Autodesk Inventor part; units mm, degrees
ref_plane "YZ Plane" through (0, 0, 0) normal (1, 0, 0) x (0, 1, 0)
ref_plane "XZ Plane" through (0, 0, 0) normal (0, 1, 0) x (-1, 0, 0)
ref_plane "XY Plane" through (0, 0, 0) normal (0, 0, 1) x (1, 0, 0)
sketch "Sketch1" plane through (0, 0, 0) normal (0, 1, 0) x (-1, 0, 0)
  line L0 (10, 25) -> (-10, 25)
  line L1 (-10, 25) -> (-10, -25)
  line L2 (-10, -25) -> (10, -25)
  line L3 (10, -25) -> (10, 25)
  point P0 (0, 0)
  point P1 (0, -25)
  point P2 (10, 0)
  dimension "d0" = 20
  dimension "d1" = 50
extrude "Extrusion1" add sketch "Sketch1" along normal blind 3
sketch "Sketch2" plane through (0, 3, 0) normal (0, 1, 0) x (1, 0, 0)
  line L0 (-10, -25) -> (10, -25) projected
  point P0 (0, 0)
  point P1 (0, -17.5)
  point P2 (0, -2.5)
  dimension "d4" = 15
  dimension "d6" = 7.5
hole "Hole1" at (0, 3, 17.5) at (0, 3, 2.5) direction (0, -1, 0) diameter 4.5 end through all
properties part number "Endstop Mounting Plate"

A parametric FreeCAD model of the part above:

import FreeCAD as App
import Part
import Sketcher
from FreeCAD import Vector


def add_polygon(sketch, points):
    """Adds a closed chain of lines whose ends are joined by coincident constraints."""
    first, n = sketch.GeometryCount, len(points)
    for a, b in zip(points, points[1:] + points[:1]):
        sketch.addGeometry(Part.LineSegment(App.Vector(*a, 0), App.Vector(*b, 0)), False)
    for i in range(n):
        sketch.addConstraint(Sketcher.Constraint("Coincident", first + i, 2, first + (i + 1) % n, 1))

doc = App.newDocument("Part")
body = doc.addObject("PartDesign::Body", "Body")

# Sketch on XZ plane
sketch1 = body.newObject("Sketcher::SketchObject", "Sketch")
sketch1.AttachmentSupport = (doc.getObject("XZ_Plane"), [""])
sketch1.MapMode = "FlatFace"
add_polygon(sketch1, [(-10, -25), (-10, 25), (10, 25), (10, -25)])  # lines 0-3
sketch1.addConstraint(Sketcher.Constraint("Vertical", 0))
sketch1.addConstraint(Sketcher.Constraint("Horizontal", 1))
sketch1.addConstraint(Sketcher.Constraint("Vertical", 2))
sketch1.addConstraint(Sketcher.Constraint("Horizontal", 3))
sketch1.addConstraint(Sketcher.Constraint("Symmetric", 0, 2, 2, 2, -1, 1))
sketch1.addConstraint(Sketcher.Constraint("DistanceX", 1, 1, 1, 2, 20.0))
sketch1.addConstraint(Sketcher.Constraint("DistanceY", 0, 1, 0, 2, 50.0))
pad1 = body.newObject("PartDesign::Pad", "Pad")
pad1.Profile = sketch1
pad1.Length = 3
pad1.Reversed = True

# Sketch on XZ plane
sketch2 = body.newObject("Sketcher::SketchObject", "Sketch001")
sketch2.AttachmentSupport = (doc.getObject("XZ_Plane"), [""])
sketch2.MapMode = "FlatFace"
sketch2.AttachmentOffset = App.Placement(Vector(0, 0, -3), App.Rotation())
sketch2.addGeometry(Part.Circle(Vector(0, 17.5, 0), Vector(0, 0, 1), 2.25), False)
sketch2.addGeometry(Part.Circle(Vector(0, 2.5, 0), Vector(0, 0, 1), 2.25), False)
sketch2.addConstraint(Sketcher.Constraint("Equal", 0, 1))
sketch2.addConstraint(Sketcher.Constraint("PointOnObject", 0, 3, -2))
sketch2.addConstraint(Sketcher.Constraint("PointOnObject", 1, 3, -2))
sketch2.addConstraint(Sketcher.Constraint("Diameter", 0, 4.5))
sketch2.addConstraint(Sketcher.Constraint("DistanceY", 1, 3, 0, 3, 15.0))
sketch2.addConstraint(Sketcher.Constraint("DistanceY", -1, 1, 0, 3, 17.5))
doc.recompute()
hole = body.newObject("PartDesign::Hole", "Hole")
hole.Profile = sketch2
hole.ThreadType = "None"
hole.Diameter = 4.5
hole.DepthType = "ThroughAll"
hole.Reversed = True

doc.recompute()
